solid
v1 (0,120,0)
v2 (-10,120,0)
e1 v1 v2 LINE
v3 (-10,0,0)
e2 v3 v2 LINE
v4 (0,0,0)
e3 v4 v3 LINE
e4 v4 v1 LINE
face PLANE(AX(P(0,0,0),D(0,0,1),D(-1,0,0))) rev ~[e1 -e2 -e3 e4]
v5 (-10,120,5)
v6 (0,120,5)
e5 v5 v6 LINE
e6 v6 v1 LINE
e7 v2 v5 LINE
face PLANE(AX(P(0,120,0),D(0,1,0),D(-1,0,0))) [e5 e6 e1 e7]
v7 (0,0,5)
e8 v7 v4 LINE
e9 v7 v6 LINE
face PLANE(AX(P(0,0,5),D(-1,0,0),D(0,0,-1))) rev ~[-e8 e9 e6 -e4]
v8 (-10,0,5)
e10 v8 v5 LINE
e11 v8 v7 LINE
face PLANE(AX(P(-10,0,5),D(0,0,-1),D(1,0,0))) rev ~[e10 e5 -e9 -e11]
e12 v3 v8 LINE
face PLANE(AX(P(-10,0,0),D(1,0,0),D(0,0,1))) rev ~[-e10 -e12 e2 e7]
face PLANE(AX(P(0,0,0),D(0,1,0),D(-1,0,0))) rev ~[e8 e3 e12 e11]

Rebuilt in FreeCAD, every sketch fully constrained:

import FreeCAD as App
import Part
import Sketcher
from FreeCAD import Vector

doc = App.newDocument("Part")
body = doc.addObject("PartDesign::Body", "Body")

# Sketch on XZ plane
sketch1 = body.newObject("Sketcher::SketchObject", "Sketch")
sketch1.AttachmentSupport = (doc.getObject("XZ_Plane"), [""])
sketch1.MapMode = "FlatFace"
sketch1.addGeometry([
    Part.LineSegment(Vector(0, 5, 0), Vector(0, 0, 0)),
    Part.LineSegment(Vector(0, 0, 0), Vector(-10, 0, 0)),
    Part.LineSegment(Vector(-10, 0, 0), Vector(-10, 5, 0)),
    Part.LineSegment(Vector(-10, 5, 0), Vector(0, 5, 0)),
], False)
sketch1.addConstraint([
    Sketcher.Constraint("Coincident", 0, 2, 1, 1),
    Sketcher.Constraint("Coincident", 1, 2, 2, 1),
    Sketcher.Constraint("Coincident", 2, 2, 3, 1),
    Sketcher.Constraint("Coincident", 3, 2, 0, 1),
    Sketcher.Constraint("Vertical", 0),
    Sketcher.Constraint("Horizontal", 1),
    Sketcher.Constraint("Vertical", 2),
    Sketcher.Constraint("Horizontal", 3),
    Sketcher.Constraint("Coincident", 0, 2, -1, 1),
    Sketcher.Constraint("DistanceX", 1, 2, 1, 1, 10.0),
    Sketcher.Constraint("DistanceY", 0, 2, 0, 1, 5.0),
])
pad1 = body.newObject("PartDesign::Pad", "Pad")
pad1.Profile = sketch1
pad1.Length = 120
pad1.Reversed = True

doc.recompute()
